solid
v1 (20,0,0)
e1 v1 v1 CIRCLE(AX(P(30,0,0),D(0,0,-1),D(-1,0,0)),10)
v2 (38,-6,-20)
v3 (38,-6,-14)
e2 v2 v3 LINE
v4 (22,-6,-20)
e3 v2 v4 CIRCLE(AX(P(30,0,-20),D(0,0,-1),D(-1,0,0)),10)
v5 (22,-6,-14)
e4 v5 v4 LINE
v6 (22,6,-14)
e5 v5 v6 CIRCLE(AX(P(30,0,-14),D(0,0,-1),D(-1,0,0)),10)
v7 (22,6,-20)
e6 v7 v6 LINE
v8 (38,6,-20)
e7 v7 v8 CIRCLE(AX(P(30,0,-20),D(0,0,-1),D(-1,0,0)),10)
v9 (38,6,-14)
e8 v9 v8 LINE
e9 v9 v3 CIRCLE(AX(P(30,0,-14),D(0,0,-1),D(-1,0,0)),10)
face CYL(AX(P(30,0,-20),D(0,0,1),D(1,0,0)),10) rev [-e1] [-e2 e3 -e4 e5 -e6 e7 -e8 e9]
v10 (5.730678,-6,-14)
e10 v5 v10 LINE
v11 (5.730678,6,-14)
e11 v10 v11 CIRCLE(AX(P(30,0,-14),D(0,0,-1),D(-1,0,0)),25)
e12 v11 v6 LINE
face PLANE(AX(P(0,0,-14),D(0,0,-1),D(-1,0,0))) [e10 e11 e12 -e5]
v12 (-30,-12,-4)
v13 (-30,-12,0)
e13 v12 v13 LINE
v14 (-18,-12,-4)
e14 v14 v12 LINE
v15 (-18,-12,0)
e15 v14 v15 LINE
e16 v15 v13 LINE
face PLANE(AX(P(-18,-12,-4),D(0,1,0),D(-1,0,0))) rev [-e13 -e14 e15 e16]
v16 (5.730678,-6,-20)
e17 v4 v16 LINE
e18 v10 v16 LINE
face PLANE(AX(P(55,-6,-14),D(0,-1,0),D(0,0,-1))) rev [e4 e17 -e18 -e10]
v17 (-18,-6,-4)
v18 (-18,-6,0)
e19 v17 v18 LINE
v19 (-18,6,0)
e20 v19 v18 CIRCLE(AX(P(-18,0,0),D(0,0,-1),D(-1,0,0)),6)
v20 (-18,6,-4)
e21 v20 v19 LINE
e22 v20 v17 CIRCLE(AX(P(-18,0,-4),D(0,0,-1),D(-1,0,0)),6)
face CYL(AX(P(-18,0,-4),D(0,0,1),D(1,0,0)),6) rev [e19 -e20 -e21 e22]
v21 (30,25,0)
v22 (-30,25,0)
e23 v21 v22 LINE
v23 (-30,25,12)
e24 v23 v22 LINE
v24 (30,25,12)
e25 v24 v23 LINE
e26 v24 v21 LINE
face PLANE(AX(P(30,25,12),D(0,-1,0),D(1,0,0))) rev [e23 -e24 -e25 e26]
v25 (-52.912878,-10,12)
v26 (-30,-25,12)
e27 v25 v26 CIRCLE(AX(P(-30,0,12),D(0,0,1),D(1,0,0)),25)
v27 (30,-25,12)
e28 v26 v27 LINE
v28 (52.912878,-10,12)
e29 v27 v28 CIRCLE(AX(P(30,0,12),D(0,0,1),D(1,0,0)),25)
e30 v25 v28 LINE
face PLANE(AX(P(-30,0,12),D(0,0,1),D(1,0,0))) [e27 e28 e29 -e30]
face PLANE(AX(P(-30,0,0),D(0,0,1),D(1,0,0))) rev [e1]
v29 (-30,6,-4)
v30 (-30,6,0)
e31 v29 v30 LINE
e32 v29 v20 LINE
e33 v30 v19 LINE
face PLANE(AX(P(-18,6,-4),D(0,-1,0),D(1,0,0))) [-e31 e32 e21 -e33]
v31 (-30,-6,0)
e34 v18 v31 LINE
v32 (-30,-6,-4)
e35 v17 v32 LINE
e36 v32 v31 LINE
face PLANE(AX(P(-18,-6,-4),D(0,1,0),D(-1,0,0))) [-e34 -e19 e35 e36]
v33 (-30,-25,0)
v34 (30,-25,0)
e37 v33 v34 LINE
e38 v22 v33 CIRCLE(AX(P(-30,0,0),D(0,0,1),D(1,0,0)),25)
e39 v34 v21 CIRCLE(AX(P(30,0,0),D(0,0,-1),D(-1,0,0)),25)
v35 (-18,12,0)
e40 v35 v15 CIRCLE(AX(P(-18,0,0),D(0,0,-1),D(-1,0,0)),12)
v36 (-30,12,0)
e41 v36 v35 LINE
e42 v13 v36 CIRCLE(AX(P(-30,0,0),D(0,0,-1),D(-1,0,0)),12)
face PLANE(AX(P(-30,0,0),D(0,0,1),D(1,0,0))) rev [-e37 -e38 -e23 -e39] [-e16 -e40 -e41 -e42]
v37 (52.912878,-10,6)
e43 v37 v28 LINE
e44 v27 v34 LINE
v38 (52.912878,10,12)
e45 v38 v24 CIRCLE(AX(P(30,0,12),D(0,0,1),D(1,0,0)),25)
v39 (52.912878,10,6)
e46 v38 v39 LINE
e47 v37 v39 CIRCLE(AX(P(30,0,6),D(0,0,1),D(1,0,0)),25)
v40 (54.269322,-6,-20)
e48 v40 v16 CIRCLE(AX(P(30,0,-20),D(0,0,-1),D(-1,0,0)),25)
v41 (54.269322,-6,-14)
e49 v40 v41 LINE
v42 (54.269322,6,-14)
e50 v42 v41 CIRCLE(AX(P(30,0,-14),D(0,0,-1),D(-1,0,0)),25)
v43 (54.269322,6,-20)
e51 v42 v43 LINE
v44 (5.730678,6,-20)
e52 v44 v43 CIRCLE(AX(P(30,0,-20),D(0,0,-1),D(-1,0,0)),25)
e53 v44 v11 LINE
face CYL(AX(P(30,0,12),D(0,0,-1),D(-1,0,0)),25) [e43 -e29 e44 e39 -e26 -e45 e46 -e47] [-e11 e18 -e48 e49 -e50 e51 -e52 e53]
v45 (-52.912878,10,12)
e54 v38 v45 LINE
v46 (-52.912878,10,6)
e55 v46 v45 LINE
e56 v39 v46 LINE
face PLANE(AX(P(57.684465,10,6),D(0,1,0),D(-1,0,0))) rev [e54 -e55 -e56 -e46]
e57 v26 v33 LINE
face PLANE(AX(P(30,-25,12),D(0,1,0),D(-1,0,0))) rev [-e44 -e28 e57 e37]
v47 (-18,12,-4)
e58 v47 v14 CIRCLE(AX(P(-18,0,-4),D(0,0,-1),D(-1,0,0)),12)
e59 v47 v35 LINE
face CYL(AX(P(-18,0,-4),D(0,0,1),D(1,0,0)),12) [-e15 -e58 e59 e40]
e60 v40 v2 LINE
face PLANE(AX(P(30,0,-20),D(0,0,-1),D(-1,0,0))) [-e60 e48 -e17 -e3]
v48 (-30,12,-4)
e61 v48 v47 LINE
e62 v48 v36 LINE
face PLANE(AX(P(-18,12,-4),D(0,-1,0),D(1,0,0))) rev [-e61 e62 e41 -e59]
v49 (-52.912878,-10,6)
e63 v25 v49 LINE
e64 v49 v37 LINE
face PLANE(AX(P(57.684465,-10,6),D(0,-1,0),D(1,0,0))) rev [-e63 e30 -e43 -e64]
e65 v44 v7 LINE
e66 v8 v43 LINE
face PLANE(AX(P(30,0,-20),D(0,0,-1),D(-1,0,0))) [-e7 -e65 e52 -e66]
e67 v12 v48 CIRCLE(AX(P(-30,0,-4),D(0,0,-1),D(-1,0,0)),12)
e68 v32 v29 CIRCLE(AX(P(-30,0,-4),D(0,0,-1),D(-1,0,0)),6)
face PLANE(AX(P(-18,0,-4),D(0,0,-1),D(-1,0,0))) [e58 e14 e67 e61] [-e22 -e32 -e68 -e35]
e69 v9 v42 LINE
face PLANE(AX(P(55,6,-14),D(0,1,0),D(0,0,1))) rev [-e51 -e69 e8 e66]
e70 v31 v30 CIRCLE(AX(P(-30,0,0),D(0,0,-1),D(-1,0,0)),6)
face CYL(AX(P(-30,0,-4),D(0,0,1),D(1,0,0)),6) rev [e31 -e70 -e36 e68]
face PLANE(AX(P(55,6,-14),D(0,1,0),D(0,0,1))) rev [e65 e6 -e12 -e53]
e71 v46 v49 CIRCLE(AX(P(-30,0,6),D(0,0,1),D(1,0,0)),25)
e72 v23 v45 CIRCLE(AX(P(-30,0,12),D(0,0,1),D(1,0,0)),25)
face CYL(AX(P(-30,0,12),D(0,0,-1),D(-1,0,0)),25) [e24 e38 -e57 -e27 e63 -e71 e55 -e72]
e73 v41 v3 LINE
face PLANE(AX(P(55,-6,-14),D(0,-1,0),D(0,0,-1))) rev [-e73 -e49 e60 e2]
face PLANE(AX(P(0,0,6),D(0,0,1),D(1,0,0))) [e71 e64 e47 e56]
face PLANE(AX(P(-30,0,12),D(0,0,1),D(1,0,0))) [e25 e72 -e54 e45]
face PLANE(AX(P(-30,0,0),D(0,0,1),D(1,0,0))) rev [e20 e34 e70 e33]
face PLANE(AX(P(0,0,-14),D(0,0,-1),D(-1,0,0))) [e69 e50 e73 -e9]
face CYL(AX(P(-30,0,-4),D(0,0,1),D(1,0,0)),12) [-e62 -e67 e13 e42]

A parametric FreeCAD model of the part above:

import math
import FreeCAD as App
import Part
import Sketcher

V = App.Vector

doc = App.newDocument("Part")
params = doc.addObject("Spreadsheet::Sheet", "Params")
for row, (alias, value) in enumerate([
    ("sketch1_radius", "25 mm"),
    ("sketch1_width", "60 mm"),
    ("pad1_length", "12 mm"),
    ("sketch2_height", "20 mm"),
    ("pocket1_length", "6 mm"),
    ("sketch3_diameter", "50 mm"),
    ("sketch3_diameter2", "20 mm"),
    ("pad2_length", "20 mm"),
    ("sketch4_width", "50 mm"),
    ("sketch4_height", "12 mm"),
    ("pocket2_length", "6 mm"),
    ("sketch5_radius", "12 mm"),
    ("sketch5_radius2", "6 mm"),
    ("sketch5_width", "12 mm"),
    ("pad3_length", "4 mm"),
], start=1):
    params.set(f"A{row}", alias)
    params.set(f"B{row}", "=" + value)
    params.setAlias(f"B{row}", alias)

body = doc.addObject("PartDesign::Body", "Body")

# Sketch on XY plane
sketch1 = body.newObject("Sketcher::SketchObject", "Sketch")
sketch1.AttachmentSupport = (doc.getObject("XY_Plane"), [""])
sketch1.MapMode = "FlatFace"
sketch1.addGeometry([
    Part.LineSegment(V(-30, -25, 0), V(30, -25, 0)),
    Part.ArcOfCircle(Part.Circle(V(30, 0, 0), V(0, 0, 1), 25), math.radians(-90), math.radians(90)),
    Part.LineSegment(V(30, 25, 0), V(-30, 25, 0)),
    Part.ArcOfCircle(Part.Circle(V(-30, 0, 0), V(0, 0, 1), 25), math.radians(90), math.radians(270)),
], False)
sketch1.addConstraint([
    Sketcher.Constraint("Tangent", 0, 2, 1, 1),
    Sketcher.Constraint("Tangent", 1, 2, 2, 1),
    Sketcher.Constraint("Tangent", 2, 2, 3, 1),
    Sketcher.Constraint("Tangent", 3, 2, 0, 1),
    Sketcher.Constraint("Horizontal", 0),
    Sketcher.Constraint("Horizontal", 2),
    Sketcher.Constraint("Symmetric", 1, 3, 3, 3, -1, 1),
    Sketcher.Constraint("Radius", 1, 25.0),
    Sketcher.Constraint("DistanceX", 0, 1, 0, 2, 60.0),
])
sketch1.setExpression("Constraints[7]", "Params.sketch1_radius")
sketch1.setExpression("Constraints[8]", "Params.sketch1_width")
pad1 = body.newObject("PartDesign::Pad", "Pad")
pad1.Profile = sketch1
pad1.setExpression("Length", "Params.pad1_length")

# Sketch on XY plane
sketch2 = body.newObject("Sketcher::SketchObject", "Sketch001")
sketch2.AttachmentSupport = (doc.getObject("XY_Plane"), [""])
sketch2.MapMode = "FlatFace"
sketch2.AttachmentOffset = App.Placement(V(0, 0, 12), App.Rotation())
sketch2.addGeometry([
    Part.LineSegment(V(-57.684465, 10, 0), V(-57.684465, -10, 0)),
    Part.LineSegment(V(-57.684465, -10, 0), V(57.684465, -10, 0)),
    Part.LineSegment(V(57.684465, -10, 0), V(57.684465, 10, 0)),
    Part.LineSegment(V(57.684465, 10, 0), V(-57.684465, 10, 0)),
], False)
sketch2.addConstraint([
    Sketcher.Constraint("Coincident", 0, 2, 1, 1),
    Sketcher.Constraint("Coincident", 1, 2, 2, 1),
    Sketcher.Constraint("Coincident", 2, 2, 3, 1),
    Sketcher.Constraint("Coincident", 3, 2, 0, 1),
    Sketcher.Constraint("Vertical", 0),
    Sketcher.Constraint("Horizontal", 1),
    Sketcher.Constraint("Vertical", 2),
    Sketcher.Constraint("Horizontal", 3),
    Sketcher.Constraint("Symmetric", 0, 2, 2, 2, -1, 1),
    Sketcher.Constraint("DistanceY", 0, 2, 0, 1, 20.0),
    Sketcher.Constraint("DistanceX", 1, 1, 1, 2, 115.368929),
])
sketch2.setExpression("Constraints[9]", "Params.sketch2_height")
pocket1 = body.newObject("PartDesign::Pocket", "Pocket")
pocket1.Profile = sketch2
pocket1.setExpression("Length", "Params.pocket1_length")

# Sketch on XY plane
sketch3 = body.newObject("Sketcher::SketchObject", "Sketch002")
sketch3.AttachmentSupport = (doc.getObject("XY_Plane"), [""])
sketch3.MapMode = "FlatFace"
sketch3.AttachmentOffset = App.Placement(V(0, 0, -20), App.Rotation())
sketch3.addGeometry([
    Part.Circle(V(30, 0, 0), V(0, 0, 1), 25),
    Part.Circle(V(30, 0, 0), V(0, 0, 1), 10),
], False)
sketch3.addConstraint([
    Sketcher.Constraint("Coincident", 1, 3, 0, 3),
    Sketcher.Constraint("PointOnObject", 0, 3, -1),
    Sketcher.Constraint("Diameter", 0, 50.0),
    Sketcher.Constraint("Diameter", 1, 20.0),
    Sketcher.Constraint("DistanceX", -1, 1, 0, 3, 30.0),
])
sketch3.setExpression("Constraints[2]", "Params.sketch3_diameter")
sketch3.setExpression("Constraints[3]", "Params.sketch3_diameter2")
pad2 = body.newObject("PartDesign::Pad", "Pad001")
pad2.Profile = sketch3
pad2.setExpression("Length", "Params.pad2_length")

# Sketch on XY plane
sketch4 = body.newObject("Sketcher::SketchObject", "Sketch003")
sketch4.AttachmentSupport = (doc.getObject("XY_Plane"), [""])
sketch4.MapMode = "FlatFace"
sketch4.AttachmentOffset = App.Placement(V(0, 0, -20), App.Rotation())
sketch4.addGeometry([
    Part.LineSegment(V(55, 6, 0), V(55, -6, 0)),
    Part.LineSegment(V(55, -6, 0), V(5, -6, 0)),
    Part.LineSegment(V(5, -6, 0), V(5, 6, 0)),
    Part.LineSegment(V(5, 6, 0), V(55, 6, 0)),
], False)
sketch4.addConstraint([
    Sketcher.Constraint("Coincident", 0, 2, 1, 1),
    Sketcher.Constraint("Coincident", 1, 2, 2, 1),
    Sketcher.Constraint("Coincident", 2, 2, 3, 1),
    Sketcher.Constraint("Coincident", 3, 2, 0, 1),
    Sketcher.Constraint("Vertical", 0),
    Sketcher.Constraint("Horizontal", 1),
    Sketcher.Constraint("Vertical", 2),
    Sketcher.Constraint("Horizontal", 3),
    Sketcher.Constraint("DistanceX", 1, 2, 1, 1, 50.0),
    Sketcher.Constraint("DistanceY", 0, 2, 0, 1, 12.0),
    Sketcher.Constraint("DistanceX", -1, 1, 0, 2, 55.0),
    Sketcher.Constraint("DistanceY", 0, 2, -1, 1, 6.0),
])
sketch4.setExpression("Constraints[8]", "Params.sketch4_width")
sketch4.setExpression("Constraints[9]", "Params.sketch4_height")
pocket2 = body.newObject("PartDesign::Pocket", "Pocket001")
pocket2.Profile = sketch4
pocket2.setExpression("Length", "Params.pocket2_length")
pocket2.Reversed = True

# Sketch on XY plane
sketch5 = body.newObject("Sketcher::SketchObject", "Sketch004")
sketch5.AttachmentSupport = (doc.getObject("XY_Plane"), [""])
sketch5.MapMode = "FlatFace"
sketch5.addGeometry([
    Part.LineSegment(V(-30, 12, 0), V(-18, 12, 0)),  # 0
    Part.ArcOfCircle(Part.Circle(V(-18, 0, 0), V(0, 0, 1), 12), math.radians(-90), math.radians(90)),  # 1
    Part.LineSegment(V(-18, -12, 0), V(-30, -12, 0)),  # 2
    Part.ArcOfCircle(Part.Circle(V(-30, 0, 0), V(0, 0, 1), 12), math.radians(90), math.radians(270)),  # 3
    Part.LineSegment(V(-18, 6, 0), V(-30, 6, 0)),  # 4
    Part.ArcOfCircle(Part.Circle(V(-30, 0, 0), V(0, 0, 1), 6), math.radians(90), math.radians(270)),  # 5
    Part.LineSegment(V(-30, -6, 0), V(-18, -6, 0)),  # 6
    Part.ArcOfCircle(Part.Circle(V(-18, 0, 0), V(0, 0, 1), 6), math.radians(-90), math.radians(90)),  # 7
], False)
sketch5.addConstraint([
    Sketcher.Constraint("Tangent", 0, 2, 1, 2),
    Sketcher.Constraint("Tangent", 1, 1, 2, 1),
    Sketcher.Constraint("Tangent", 2, 2, 3, 2),
    Sketcher.Constraint("Tangent", 3, 1, 0, 1),
    Sketcher.Constraint("Tangent", 4, 2, 5, 1),
    Sketcher.Constraint("Tangent", 5, 2, 6, 1),
    Sketcher.Constraint("Tangent", 6, 2, 7, 1),
    Sketcher.Constraint("Tangent", 7, 2, 4, 1),
    Sketcher.Constraint("Horizontal", 0),
    Sketcher.Constraint("Horizontal", 2),
    Sketcher.Constraint("Horizontal", 4),
    Sketcher.Constraint("Horizontal", 6),
    Sketcher.Constraint("Coincident", 5, 3, 3, 3),
    Sketcher.Constraint("PointOnObject", 1, 3, -1),
    Sketcher.Constraint("Vertical", 7, 3, 0, 2),
    Sketcher.Constraint("Radius", 1, 12.0),
    Sketcher.Constraint("Radius", 5, 6.0),
    Sketcher.Constraint("DistanceX", 0, 1, 0, 2, 12.0),
    Sketcher.Constraint("DistanceX", 1, 3, -1, 1, 18.0),
])
sketch5.setExpression("Constraints[15]", "Params.sketch5_radius")
sketch5.setExpression("Constraints[16]", "Params.sketch5_radius2")
sketch5.setExpression("Constraints[17]", "Params.sketch5_width")
pad3 = body.newObject("PartDesign::Pad", "Pad002")
pad3.Profile = sketch5
pad3.setExpression("Length", "Params.pad3_length")
pad3.Reversed = True

doc.recompute()
